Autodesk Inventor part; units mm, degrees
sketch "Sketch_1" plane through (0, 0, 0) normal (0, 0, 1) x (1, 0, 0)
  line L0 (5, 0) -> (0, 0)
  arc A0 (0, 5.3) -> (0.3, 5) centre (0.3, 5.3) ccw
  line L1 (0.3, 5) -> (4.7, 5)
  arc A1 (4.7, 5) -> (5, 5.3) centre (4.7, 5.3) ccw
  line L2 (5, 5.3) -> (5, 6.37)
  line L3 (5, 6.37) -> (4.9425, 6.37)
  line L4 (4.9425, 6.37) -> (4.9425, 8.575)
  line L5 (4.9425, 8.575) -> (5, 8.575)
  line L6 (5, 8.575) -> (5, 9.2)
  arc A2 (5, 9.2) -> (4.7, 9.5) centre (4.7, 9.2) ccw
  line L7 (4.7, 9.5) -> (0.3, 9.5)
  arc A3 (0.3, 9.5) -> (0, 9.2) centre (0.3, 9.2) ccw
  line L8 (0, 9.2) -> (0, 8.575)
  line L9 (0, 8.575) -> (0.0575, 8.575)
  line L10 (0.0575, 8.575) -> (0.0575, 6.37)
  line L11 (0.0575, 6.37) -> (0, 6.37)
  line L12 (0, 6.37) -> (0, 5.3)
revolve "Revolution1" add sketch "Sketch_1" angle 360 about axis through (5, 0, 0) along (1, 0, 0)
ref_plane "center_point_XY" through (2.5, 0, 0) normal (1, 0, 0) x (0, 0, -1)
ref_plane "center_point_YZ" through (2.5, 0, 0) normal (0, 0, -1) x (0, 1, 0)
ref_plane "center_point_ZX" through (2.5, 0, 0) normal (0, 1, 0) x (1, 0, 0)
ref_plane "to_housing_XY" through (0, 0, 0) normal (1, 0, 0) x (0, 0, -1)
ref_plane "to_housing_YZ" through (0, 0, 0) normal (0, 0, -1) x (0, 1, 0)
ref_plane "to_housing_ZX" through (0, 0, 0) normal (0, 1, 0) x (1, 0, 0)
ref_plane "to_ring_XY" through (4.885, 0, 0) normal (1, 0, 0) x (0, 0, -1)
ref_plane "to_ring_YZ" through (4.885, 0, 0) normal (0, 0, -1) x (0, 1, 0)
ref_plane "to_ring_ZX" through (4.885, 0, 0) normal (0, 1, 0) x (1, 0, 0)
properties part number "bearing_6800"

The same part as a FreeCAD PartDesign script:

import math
import FreeCAD as App
import Part
import Sketcher

V = App.Vector
Q = App.Units.Quantity

doc = App.newDocument("Part")
body = doc.addObject("PartDesign::Body", "Body")

# Sketch on XY plane
sketch1 = body.newObject("Sketcher::SketchObject", "Sketch")
sketch1.AttachmentSupport = (doc.getObject("XY_Plane"), [""])
sketch1.MapMode = "FlatFace"
sketch1.addGeometry([
    Part.LineSegment(V(0, 6.37, 0), V(0, 5.3, 0)),  # 0
    Part.ArcOfCircle(Part.Circle(V(0.3, 5.3, 0), V(0, 0, 1), 0.3), math.radians(180), math.radians(270)),  # 1
    Part.LineSegment(V(0.3, 5, 0), V(4.7, 5, 0)),  # 2
    Part.ArcOfCircle(Part.Circle(V(4.7, 5.3, 0), V(0, 0, 1), 0.3), math.radians(-90), math.radians(0)),  # 3
    Part.LineSegment(V(5, 5.3, 0), V(5, 6.37, 0)),  # 4
    Part.LineSegment(V(5, 6.37, 0), V(4.94, 6.37, 0)),  # 5
    Part.LineSegment(V(4.94, 6.37, 0), V(4.94, 8.57, 0)),  # 6
    Part.LineSegment(V(4.94, 8.57, 0), V(5, 8.57, 0)),  # 7
    Part.LineSegment(V(5, 8.57, 0), V(5, 9.2, 0)),  # 8
    Part.ArcOfCircle(Part.Circle(V(4.7, 9.2, 0), V(0, 0, 1), 0.3), math.radians(0), math.radians(90)),  # 9
    Part.LineSegment(V(4.7, 9.5, 0), V(0.3, 9.5, 0)),  # 10
    Part.ArcOfCircle(Part.Circle(V(0.3, 9.2, 0), V(0, 0, 1), 0.3), math.radians(90), math.radians(180)),  # 11
    Part.LineSegment(V(0, 9.2, 0), V(0, 8.57, 0)),  # 12
    Part.LineSegment(V(0, 8.57, 0), V(0.06, 8.57, 0)),  # 13
    Part.LineSegment(V(0.06, 8.57, 0), V(0.06, 6.37, 0)),  # 14
    Part.LineSegment(V(0.06, 6.37, 0), V(0, 6.37, 0)),  # 15
], False)
sketch1.addConstraint([
    Sketcher.Constraint("Tangent", 0, 2, 1, 1),
    Sketcher.Constraint("Tangent", 1, 2, 2, 1),
    Sketcher.Constraint("Tangent", 2, 2, 3, 1),
    Sketcher.Constraint("Tangent", 3, 2, 4, 1),
    Sketcher.Constraint("Coincident", 4, 2, 5, 1),
    Sketcher.Constraint("Coincident", 5, 2, 6, 1),
    Sketcher.Constraint("Coincident", 6, 2, 7, 1),
    Sketcher.Constraint("Coincident", 7, 2, 8, 1),
    Sketcher.Constraint("Tangent", 8, 2, 9, 1),
    Sketcher.Constraint("Tangent", 9, 2, 10, 1),
    Sketcher.Constraint("Tangent", 10, 2, 11, 1),
    Sketcher.Constraint("Tangent", 11, 2, 12, 1),
    Sketcher.Constraint("Coincident", 12, 2, 13, 1),
    Sketcher.Constraint("Coincident", 13, 2, 14, 1),
    Sketcher.Constraint("Coincident", 14, 2, 15, 1),
    Sketcher.Constraint("Coincident", 15, 2, 0, 1),
    Sketcher.Constraint("Vertical", 0),
    Sketcher.Constraint("Horizontal", 2),
    Sketcher.Constraint("Vertical", 4),
    Sketcher.Constraint("Horizontal", 5),
    Sketcher.Constraint("Vertical", 6),
    Sketcher.Constraint("Horizontal", 7),
    Sketcher.Constraint("Vertical", 8),
    Sketcher.Constraint("Horizontal", 10),
    Sketcher.Constraint("Vertical", 12),
    Sketcher.Constraint("Horizontal", 13),
    Sketcher.Constraint("Vertical", 14),
    Sketcher.Constraint("Horizontal", 15),
    Sketcher.Constraint("Equal", 1, 3),
    Sketcher.Constraint("Equal", 3, 9),
    Sketcher.Constraint("Equal", 9, 11),
    Sketcher.Constraint("PointOnObject", 0, 2, -2),
    Sketcher.Constraint("PointOnObject", 11, 2, -2),
    Sketcher.Constraint("Horizontal", 7, 2, 12, 2),
    Sketcher.Constraint("Horizontal", 5, 2, 14, 2),
    Sketcher.Constraint("Vertical", 3, 3, 9, 3),
    Sketcher.Constraint("Equal", 7, 13),
    Sketcher.Constraint("Radius", 1, Q("0.3 mm")),
    Sketcher.Constraint("DistanceX", 2, 1, 2, 2, Q("4.4 mm")),
    Sketcher.Constraint("DistanceY", -1, 1, 1, 2, Q("5 mm")),
    Sketcher.Constraint("DistanceY", 0, 2, 0, 1, Q("1.07 mm")),
    Sketcher.Constraint("DistanceY", -1, 1, 9, 3, Q("9.2 mm")),
    Sketcher.Constraint("DistanceY", 6, 1, 6, 2, Q("2.205 mm")),
    Sketcher.Constraint("DistanceX", 5, 2, 5, 1, Q("0.0575 mm")),
])
revolution = body.newObject("PartDesign::Revolution", "Revolution")
revolution.Profile = sketch1
revolution.ReferenceAxis = (sketch1, ["H_Axis"])
revolution.Angle = 360

doc.recompute()
